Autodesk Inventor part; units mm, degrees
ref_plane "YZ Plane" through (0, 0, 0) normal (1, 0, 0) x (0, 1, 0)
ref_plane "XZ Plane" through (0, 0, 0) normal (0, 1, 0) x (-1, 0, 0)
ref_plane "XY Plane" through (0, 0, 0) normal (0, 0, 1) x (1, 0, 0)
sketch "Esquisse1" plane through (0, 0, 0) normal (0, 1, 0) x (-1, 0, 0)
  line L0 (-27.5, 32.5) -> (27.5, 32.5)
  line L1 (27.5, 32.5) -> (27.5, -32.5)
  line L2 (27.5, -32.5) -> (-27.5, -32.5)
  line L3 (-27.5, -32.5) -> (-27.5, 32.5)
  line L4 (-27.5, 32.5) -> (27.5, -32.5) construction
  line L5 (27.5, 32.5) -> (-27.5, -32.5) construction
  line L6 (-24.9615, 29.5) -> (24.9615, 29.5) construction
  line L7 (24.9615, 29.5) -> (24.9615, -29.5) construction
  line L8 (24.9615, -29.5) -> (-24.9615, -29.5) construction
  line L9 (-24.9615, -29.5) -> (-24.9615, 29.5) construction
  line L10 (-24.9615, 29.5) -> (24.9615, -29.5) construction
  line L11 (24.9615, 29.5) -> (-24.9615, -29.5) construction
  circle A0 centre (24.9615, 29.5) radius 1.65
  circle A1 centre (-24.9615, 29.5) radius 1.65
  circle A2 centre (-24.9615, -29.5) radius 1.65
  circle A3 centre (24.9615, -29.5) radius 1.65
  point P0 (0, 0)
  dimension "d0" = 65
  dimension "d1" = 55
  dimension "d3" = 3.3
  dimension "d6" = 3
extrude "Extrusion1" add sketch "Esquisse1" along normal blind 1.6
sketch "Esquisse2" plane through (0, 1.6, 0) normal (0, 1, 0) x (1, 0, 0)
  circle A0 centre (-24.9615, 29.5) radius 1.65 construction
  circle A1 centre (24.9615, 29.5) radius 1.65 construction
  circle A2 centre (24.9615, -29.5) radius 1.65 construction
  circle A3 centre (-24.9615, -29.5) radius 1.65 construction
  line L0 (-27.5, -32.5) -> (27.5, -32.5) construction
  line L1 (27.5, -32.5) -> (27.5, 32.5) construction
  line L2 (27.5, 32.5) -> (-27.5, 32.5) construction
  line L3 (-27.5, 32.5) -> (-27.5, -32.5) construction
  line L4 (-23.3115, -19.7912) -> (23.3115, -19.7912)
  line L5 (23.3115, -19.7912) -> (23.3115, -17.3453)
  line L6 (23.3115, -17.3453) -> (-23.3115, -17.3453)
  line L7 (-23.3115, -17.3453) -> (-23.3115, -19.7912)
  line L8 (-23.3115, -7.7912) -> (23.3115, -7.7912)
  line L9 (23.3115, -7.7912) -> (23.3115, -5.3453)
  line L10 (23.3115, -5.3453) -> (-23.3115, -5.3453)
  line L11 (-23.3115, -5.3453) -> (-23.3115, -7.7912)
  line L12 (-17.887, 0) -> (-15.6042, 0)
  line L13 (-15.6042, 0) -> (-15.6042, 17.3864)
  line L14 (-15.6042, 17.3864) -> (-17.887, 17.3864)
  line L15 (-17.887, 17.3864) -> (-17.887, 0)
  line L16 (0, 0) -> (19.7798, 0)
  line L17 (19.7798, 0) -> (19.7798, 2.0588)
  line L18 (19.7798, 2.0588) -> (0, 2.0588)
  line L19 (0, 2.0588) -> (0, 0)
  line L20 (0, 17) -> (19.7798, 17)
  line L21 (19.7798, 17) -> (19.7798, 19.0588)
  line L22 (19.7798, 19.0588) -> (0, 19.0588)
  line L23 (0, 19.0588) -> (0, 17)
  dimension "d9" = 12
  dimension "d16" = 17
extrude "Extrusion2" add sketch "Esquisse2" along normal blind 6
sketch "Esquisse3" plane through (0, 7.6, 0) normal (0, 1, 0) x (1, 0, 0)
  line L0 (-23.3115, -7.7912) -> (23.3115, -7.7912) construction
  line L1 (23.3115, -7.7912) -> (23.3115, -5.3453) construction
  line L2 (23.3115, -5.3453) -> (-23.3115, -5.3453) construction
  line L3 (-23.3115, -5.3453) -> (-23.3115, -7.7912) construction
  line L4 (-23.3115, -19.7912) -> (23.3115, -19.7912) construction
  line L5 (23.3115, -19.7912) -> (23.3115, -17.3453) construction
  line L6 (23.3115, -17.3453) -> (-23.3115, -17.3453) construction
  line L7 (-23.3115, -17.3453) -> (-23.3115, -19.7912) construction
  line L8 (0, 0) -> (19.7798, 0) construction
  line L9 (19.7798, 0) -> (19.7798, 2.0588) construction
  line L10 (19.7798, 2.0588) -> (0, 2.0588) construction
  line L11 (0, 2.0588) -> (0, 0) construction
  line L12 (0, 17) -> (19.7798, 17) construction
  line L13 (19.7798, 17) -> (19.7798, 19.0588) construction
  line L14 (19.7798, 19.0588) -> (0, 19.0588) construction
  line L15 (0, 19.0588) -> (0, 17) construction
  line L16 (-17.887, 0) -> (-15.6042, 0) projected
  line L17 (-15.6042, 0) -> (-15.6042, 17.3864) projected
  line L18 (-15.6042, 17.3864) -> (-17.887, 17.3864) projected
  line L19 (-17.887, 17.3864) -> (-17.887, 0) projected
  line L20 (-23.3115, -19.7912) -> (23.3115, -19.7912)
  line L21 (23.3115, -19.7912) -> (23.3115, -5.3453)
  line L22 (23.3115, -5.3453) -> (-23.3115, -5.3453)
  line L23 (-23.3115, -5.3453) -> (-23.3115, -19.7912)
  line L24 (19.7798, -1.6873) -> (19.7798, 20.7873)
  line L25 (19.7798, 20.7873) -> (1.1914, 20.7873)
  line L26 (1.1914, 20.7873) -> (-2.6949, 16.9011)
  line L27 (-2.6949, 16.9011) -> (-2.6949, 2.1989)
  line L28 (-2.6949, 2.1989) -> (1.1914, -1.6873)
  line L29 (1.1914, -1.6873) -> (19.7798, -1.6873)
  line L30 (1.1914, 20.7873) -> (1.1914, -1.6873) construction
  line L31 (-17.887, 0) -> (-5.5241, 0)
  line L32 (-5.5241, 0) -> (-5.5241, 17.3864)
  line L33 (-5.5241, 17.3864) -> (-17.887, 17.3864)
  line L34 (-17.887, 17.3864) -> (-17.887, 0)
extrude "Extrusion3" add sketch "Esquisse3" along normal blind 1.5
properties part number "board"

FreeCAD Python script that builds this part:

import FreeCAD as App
import Part
import Sketcher
Q = App.Units.Quantity


def add_polygon(sketch, points):
    """Adds a closed chain of lines whose ends are joined by coincident constraints."""
    first, n = sketch.GeometryCount, len(points)
    for a, b in zip(points, points[1:] + points[:1]):
        sketch.addGeometry(Part.LineSegment(App.Vector(*a, 0), App.Vector(*b, 0)), False)
    for i in range(n):
        sketch.addConstraint(Sketcher.Constraint("Coincident", first + i, 2, first + (i + 1) % n, 1))

doc = App.newDocument("Part")
params = doc.addObject("Spreadsheet::Sheet", "Params")
for row, (alias, value) in enumerate([
    ("sketch1_diameter", "3.3 mm"),
    ("sketch1_width", "55 mm"),
    ("sketch1_height", "65 mm"),
    ("pad1_length", "1.6 mm"),
    ("pad2_length", "6 mm"),
    ("pad3_length", "1.5 mm"),
], start=1):
    params.set(f"A{row}", alias)
    params.set(f"B{row}", "=" + value)
    params.setAlias(f"B{row}", alias)

body = doc.addObject("PartDesign::Body", "Body")

# Sketch on XZ plane
sketch1 = body.newObject("Sketcher::SketchObject", "Sketch")
sketch1.AttachmentSupport = (doc.getObject("XZ_Plane"), [""])
sketch1.MapMode = "FlatFace"
add_polygon(sketch1, [(-27.5, 32.5), (27.5, 32.5), (27.5, -32.5), (-27.5, -32.5)])  # lines 0-3
sketch1.addGeometry(Part.Circle(App.Vector(25, -29.5, 0), App.Vector(0, 0, 1), 1.6), False)  # 4
sketch1.addGeometry(Part.Circle(App.Vector(-25, -29.5, 0), App.Vector(0, 0, 1), 1.6), False)  # 5
sketch1.addGeometry(Part.Circle(App.Vector(25, 29.5, 0), App.Vector(0, 0, 1), 1.6), False)  # 6
sketch1.addGeometry(Part.Circle(App.Vector(-25, 29.5, 0), App.Vector(0, 0, 1), 1.6), False)  # 7
sketch1.addConstraint(Sketcher.Constraint("Horizontal", 0))
sketch1.addConstraint(Sketcher.Constraint("Vertical", 1))
sketch1.addConstraint(Sketcher.Constraint("Horizontal", 2))
sketch1.addConstraint(Sketcher.Constraint("Vertical", 3))
sketch1.addConstraint(Sketcher.Constraint("Equal", 4, 5))
sketch1.addConstraint(Sketcher.Constraint("Equal", 5, 6))
sketch1.addConstraint(Sketcher.Constraint("Equal", 6, 7))
sketch1.addConstraint(Sketcher.Constraint("Symmetric", 5, 3, 6, 3, -1, 1))
sketch1.addConstraint(Sketcher.Constraint("Symmetric", 4, 3, 7, 3, -1, 1))
sketch1.addConstraint(Sketcher.Constraint("Symmetric", 0, 2, 2, 2, -1, 1))
sketch1.addConstraint(Sketcher.Constraint("Symmetric", 4, 3, 5, 3, -2))
sketch1.addConstraint(Sketcher.Constraint("Diameter", 4, Q("3.3 mm")))
sketch1.addConstraint(Sketcher.Constraint("DistanceX", 0, 1, 0, 2, Q("55 mm")))
sketch1.addConstraint(Sketcher.Constraint("DistanceY", 1, 2, 1, 1, Q("65 mm")))
sketch1.addConstraint(Sketcher.Constraint("DistanceY", 6, 3, 0, 2, Q("3 mm")))
sketch1.addConstraint(Sketcher.Constraint("DistanceX", 5, 3, 4, 3, Q("49.923 mm")))
sketch1.setExpression("Constraints[15]", "Params.sketch1_diameter")
sketch1.setExpression("Constraints[16]", "Params.sketch1_width")
sketch1.setExpression("Constraints[17]", "Params.sketch1_height")
pad1 = body.newObject("PartDesign::Pad", "Pad")
pad1.Profile = sketch1
pad1.setExpression("Length", "Params.pad1_length")
pad1.Reversed = True

# Sketch on XZ plane
sketch2 = body.newObject("Sketcher::SketchObject", "Sketch001")
sketch2.AttachmentSupport = (doc.getObject("XZ_Plane"), [""])
sketch2.MapMode = "FlatFace"
sketch2.AttachmentOffset = App.Placement(App.Vector(0, 0, -1.6), App.Rotation())
add_polygon(sketch2, [(-23.3, 17.3), (-23.3, 19.8), (23.3, 19.8), (23.3, 17.3)])  # lines 0-3
add_polygon(sketch2, [(-23.3, 5.3), (-23.3, 7.8), (23.3, 7.8), (23.3, 5.3)])  # lines 4-7
add_polygon(sketch2, [(-17.9, -17.4), (-17.9, 0), (-15.6, 0), (-15.6, -17.4)])  # lines 8-11
add_polygon(sketch2, [(0, -2.1), (0, 0), (19.8, 0), (19.8, -2.1)])  # lines 12-15
add_polygon(sketch2, [(0, -19.1), (0, -17), (19.8, -17), (19.8, -19.1)])  # lines 16-19
sketch2.addConstraint(Sketcher.Constraint("Vertical", 0))
sketch2.addConstraint(Sketcher.Constraint("Horizontal", 1))
sketch2.addConstraint(Sketcher.Constraint("Vertical", 2))
sketch2.addConstraint(Sketcher.Constraint("Horizontal", 3))
sketch2.addConstraint(Sketcher.Constraint("Vertical", 4))
sketch2.addConstraint(Sketcher.Constraint("Horizontal", 5))
sketch2.addConstraint(Sketcher.Constraint("Vertical", 6))
sketch2.addConstraint(Sketcher.Constraint("Horizontal", 7))
sketch2.addConstraint(Sketcher.Constraint("Vertical", 8))
sketch2.addConstraint(Sketcher.Constraint("Horizontal", 9))
sketch2.addConstraint(Sketcher.Constraint("Vertical", 10))
sketch2.addConstraint(Sketcher.Constraint("Horizontal", 11))
sketch2.addConstraint(Sketcher.Constraint("Vertical", 12))
sketch2.addConstraint(Sketcher.Constraint("Horizontal", 13))
sketch2.addConstraint(Sketcher.Constraint("Vertical", 14))
sketch2.addConstraint(Sketcher.Constraint("Horizontal", 15))
sketch2.addConstraint(Sketcher.Constraint("Vertical", 16))
sketch2.addConstraint(Sketcher.Constraint("Horizontal", 17))
sketch2.addConstraint(Sketcher.Constraint("Vertical", 18))
sketch2.addConstraint(Sketcher.Constraint("Horizontal", 19))
sketch2.addConstraint(Sketcher.Constraint("Coincident", 12, 2, -1, 1))
sketch2.addConstraint(Sketcher.Constraint("PointOnObject", 8, 2, -1))
sketch2.addConstraint(Sketcher.Constraint("PointOnObject", 16, 2, -2))
sketch2.addConstraint(Sketcher.Constraint("Vertical", 3, 2, 4, 2))
sketch2.addConstraint(Sketcher.Constraint("Vertical", 2, 2, 5, 2))
sketch2.addConstraint(Sketcher.Constraint("Vertical", 14, 2, 17, 2))
sketch2.addConstraint(Sketcher.Constraint("Equal", 2, 4))
sketch2.addConstraint(Sketcher.Constraint("Equal", 14, 16))
sketch2.addConstraint(Sketcher.Constraint("DistanceY", 16, 2, -1, 1, Q("17 mm")))
sketch2.addConstraint(Sketcher.Constraint("DistanceY", 4, 2, 0, 2, Q("12 mm")))
sketch2.addConstraint(Sketcher.Constraint("DistanceX", 1, 1, 1, 2, Q("46.623 mm")))
sketch2.addConstraint(Sketcher.Constraint("DistanceY", 0, 1, 0, 2, Q("2.446 mm")))
sketch2.addConstraint(Sketcher.Constraint("DistanceY", 14, 2, 5, 2, Q("9.85 mm")))
sketch2.addConstraint(Sketcher.Constraint("DistanceX", 9, 1, 9, 2, Q("2.2828 mm")))
sketch2.addConstraint(Sketcher.Constraint("DistanceX", 13, 1, 13, 2, Q("19.7798 mm")))
sketch2.addConstraint(Sketcher.Constraint("DistanceY", 8, 1, 8, 2, Q("17.3864 mm")))
sketch2.addConstraint(Sketcher.Constraint("DistanceY", 12, 1, 12, 2, Q("2.0588 mm")))
sketch2.addConstraint(Sketcher.Constraint("DistanceX", 8, 2, -1, 1, Q("17.887 mm")))
sketch2.addConstraint(Sketcher.Constraint("DistanceX", 0, 2, -1, 1, Q("23.3115 mm")))
pad2 = body.newObject("PartDesign::Pad", "Pad001")
pad2.Profile = sketch2
pad2.setExpression("Length", "Params.pad2_length")
pad2.Reversed = True

# Sketch on XZ plane
sketch3 = body.newObject("Sketcher::SketchObject", "Sketch002")
sketch3.AttachmentSupport = (doc.getObject("XZ_Plane"), [""])
sketch3.MapMode = "FlatFace"
sketch3.AttachmentOffset = App.Placement(App.Vector(0, 0, -7.6), App.Rotation())
add_polygon(sketch3, [(-18, -17), (-18, 0), (-6, 0), (-6, -17)])  # lines 0-3
add_polygon(sketch3, [(-23, 5), (-23, 20), (23, 20), (23, 5)])  # lines 4-7
add_polygon(sketch3, [(1, 2), (20, 2), (20, -21), (1, -21), (-3, -17), (-3, -2)])  # lines 8-13
sketch3.addConstraint(Sketcher.Constraint("Vertical", 0))
sketch3.addConstraint(Sketcher.Constraint("Horizontal", 1))
sketch3.addConstraint(Sketcher.Constraint("Vertical", 2))
sketch3.addConstraint(Sketcher.Constraint("Horizontal", 3))
sketch3.addConstraint(Sketcher.Constraint("Vertical", 4))
sketch3.addConstraint(Sketcher.Constraint("Horizontal", 5))
sketch3.addConstraint(Sketcher.Constraint("Vertical", 6))
sketch3.addConstraint(Sketcher.Constraint("Horizontal", 7))
sketch3.addConstraint(Sketcher.Constraint("Horizontal", 8))
sketch3.addConstraint(Sketcher.Constraint("Vertical", 9))
sketch3.addConstraint(Sketcher.Constraint("Horizontal", 10))
sketch3.addConstraint(Sketcher.Constraint("Vertical", 12))
sketch3.addConstraint(Sketcher.Constraint("PointOnObject", 0, 2, -1))
sketch3.addConstraint(Sketcher.Constraint("Perpendicular", 11, 13))
sketch3.addConstraint(Sketcher.Constraint("Vertical", 10, 2, 13, 2))
sketch3.addConstraint(Sketcher.Constraint("Equal", 11, 13))
sketch3.addConstraint(Sketcher.Constraint("DistanceX", 1, 1, 1, 2, Q("12.363 mm")))
sketch3.addConstraint(Sketcher.Constraint("DistanceX", 5, 1, 5, 2, Q("46.623 mm")))
sketch3.addConstraint(Sketcher.Constraint("DistanceY", 4, 1, 4, 2, Q("14.446 mm")))
sketch3.addConstraint(Sketcher.Constraint("Distance", 11, Q("5.496 mm")))
sketch3.addConstraint(Sketcher.Constraint("DistanceX", 8, 1, 8, 2, Q("18.5884 mm")))
sketch3.addConstraint(Sketcher.Constraint("DistanceY", 0, 1, 0, 2, Q("17.3864 mm")))
sketch3.addConstraint(Sketcher.Constraint("DistanceY", 9, 2, 9, 1, Q("22.4746 mm")))
sketch3.addConstraint(Sketcher.Constraint("DistanceX", 0, 2, -1, 1, Q("17.887 mm")))
sketch3.addConstraint(Sketcher.Constraint("DistanceX", 11, 2, -1, 1, Q("2.695 mm")))
sketch3.addConstraint(Sketcher.Constraint("DistanceY", 11, 2, -1, 1, Q("16.901 mm")))
sketch3.addConstraint(Sketcher.Constraint("DistanceY", 8, 2, 6, 2, Q("3.658 mm")))
sketch3.addConstraint(Sketcher.Constraint("DistanceX", 4, 2, -1, 1, Q("23.3115 mm")))
pad3 = body.newObject("PartDesign::Pad", "Pad002")
pad3.Profile = sketch3
pad3.setExpression("Length", "Params.pad3_length")
pad3.Reversed = True

doc.recompute()
